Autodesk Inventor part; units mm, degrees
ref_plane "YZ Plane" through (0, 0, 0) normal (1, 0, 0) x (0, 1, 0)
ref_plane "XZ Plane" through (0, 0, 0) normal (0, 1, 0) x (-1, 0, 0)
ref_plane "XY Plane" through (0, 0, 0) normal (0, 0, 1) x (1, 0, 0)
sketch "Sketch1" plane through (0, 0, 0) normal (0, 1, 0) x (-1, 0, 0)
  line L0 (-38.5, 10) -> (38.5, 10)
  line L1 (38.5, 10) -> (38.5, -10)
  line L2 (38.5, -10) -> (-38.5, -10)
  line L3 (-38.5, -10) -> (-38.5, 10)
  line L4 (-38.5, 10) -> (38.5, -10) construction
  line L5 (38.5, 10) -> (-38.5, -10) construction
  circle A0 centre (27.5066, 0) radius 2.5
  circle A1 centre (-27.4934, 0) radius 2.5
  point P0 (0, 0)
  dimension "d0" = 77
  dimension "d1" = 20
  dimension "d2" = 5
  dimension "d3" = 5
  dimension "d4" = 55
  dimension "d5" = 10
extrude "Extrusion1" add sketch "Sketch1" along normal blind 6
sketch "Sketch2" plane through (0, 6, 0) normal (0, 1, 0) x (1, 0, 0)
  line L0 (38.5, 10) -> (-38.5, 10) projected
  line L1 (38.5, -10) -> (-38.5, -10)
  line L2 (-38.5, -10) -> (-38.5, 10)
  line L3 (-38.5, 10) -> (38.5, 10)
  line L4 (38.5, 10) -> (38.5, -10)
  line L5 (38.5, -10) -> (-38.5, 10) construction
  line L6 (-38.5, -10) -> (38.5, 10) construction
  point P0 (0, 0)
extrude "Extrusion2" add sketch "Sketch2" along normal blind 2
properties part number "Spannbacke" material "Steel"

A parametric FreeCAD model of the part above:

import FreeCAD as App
import Part
import Sketcher

V = App.Vector
Q = App.Units.Quantity

doc = App.newDocument("Part")
body = doc.addObject("PartDesign::Body", "Body")

# Sketch on XZ plane
sketch1 = body.newObject("Sketcher::SketchObject", "Sketch")
sketch1.AttachmentSupport = (doc.getObject("XZ_Plane"), [""])
sketch1.MapMode = "FlatFace"
sketch1.addGeometry([
    Part.LineSegment(V(-38.5, 10, 0), V(38.5, 10, 0)),  # 0
    Part.LineSegment(V(38.5, 10, 0), V(38.5, -10, 0)),  # 1
    Part.LineSegment(V(38.5, -10, 0), V(-38.5, -10, 0)),  # 2
    Part.LineSegment(V(-38.5, -10, 0), V(-38.5, 10, 0)),  # 3
    Part.Circle(V(27.5, 0, 0), V(0, 0, 1), 2.5),  # 4
    Part.Circle(V(-27.5, 0, 0), V(0, 0, 1), 2.5),  # 5
], False)
sketch1.addConstraint([
    Sketcher.Constraint("Coincident", 0, 2, 1, 1),
    Sketcher.Constraint("Coincident", 1, 2, 2, 1),
    Sketcher.Constraint("Coincident", 2, 2, 3, 1),
    Sketcher.Constraint("Coincident", 3, 2, 0, 1),
    Sketcher.Constraint("Horizontal", 0),
    Sketcher.Constraint("Vertical", 1),
    Sketcher.Constraint("Horizontal", 2),
    Sketcher.Constraint("Vertical", 3),
    Sketcher.Constraint("Equal", 4, 5),
    Sketcher.Constraint("Symmetric", 0, 2, 2, 2, -1, 1),
    Sketcher.Constraint("PointOnObject", 4, 3, -1),
    Sketcher.Constraint("PointOnObject", 5, 3, -1),
    Sketcher.Constraint("Diameter", 4, Q("5 mm")),
    Sketcher.Constraint("DistanceX", 0, 1, 0, 2, Q("77 mm")),
    Sketcher.Constraint("DistanceY", 1, 2, 1, 1, Q("20 mm")),
    Sketcher.Constraint("DistanceX", 5, 3, 4, 3, Q("55 mm")),
    Sketcher.Constraint("DistanceX", -1, 1, 4, 3, Q("27.4934 mm")),
])
pad1 = body.newObject("PartDesign::Pad", "Pad")
pad1.Profile = sketch1
pad1.Length = 6
pad1.Reversed = True

# Sketch on XZ plane
sketch2 = body.newObject("Sketcher::SketchObject", "Sketch001")
sketch2.AttachmentSupport = (doc.getObject("XZ_Plane"), [""])
sketch2.MapMode = "FlatFace"
sketch2.AttachmentOffset = App.Placement(V(0, 0, -6), App.Rotation())
sketch2.addGeometry([
    Part.LineSegment(V(38, 10, 0), V(38, -10, 0)),
    Part.LineSegment(V(38, -10, 0), V(-38, -10, 0)),
    Part.LineSegment(V(-38, -10, 0), V(-38, 10, 0)),
    Part.LineSegment(V(-38, 10, 0), V(38, 10, 0)),
], False)
sketch2.addConstraint([
    Sketcher.Constraint("Coincident", 0, 2, 1, 1),
    Sketcher.Constraint("Coincident", 1, 2, 2, 1),
    Sketcher.Constraint("Coincident", 2, 2, 3, 1),
    Sketcher.Constraint("Coincident", 3, 2, 0, 1),
    Sketcher.Constraint("Vertical", 0),
    Sketcher.Constraint("Horizontal", 1),
    Sketcher.Constraint("Vertical", 2),
    Sketcher.Constraint("Horizontal", 3),
    Sketcher.Constraint("Symmetric", 0, 2, 2, 2, -1, 1),
    Sketcher.Constraint("DistanceX", 1, 2, 1, 1, Q("77 mm")),
    Sketcher.Constraint("DistanceY", 0, 2, 0, 1, Q("20 mm")),
])
pad2 = body.newObject("PartDesign::Pad", "Pad001")
pad2.Profile = sketch2
pad2.Length = 2
pad2.Reversed = True

doc.recompute()
